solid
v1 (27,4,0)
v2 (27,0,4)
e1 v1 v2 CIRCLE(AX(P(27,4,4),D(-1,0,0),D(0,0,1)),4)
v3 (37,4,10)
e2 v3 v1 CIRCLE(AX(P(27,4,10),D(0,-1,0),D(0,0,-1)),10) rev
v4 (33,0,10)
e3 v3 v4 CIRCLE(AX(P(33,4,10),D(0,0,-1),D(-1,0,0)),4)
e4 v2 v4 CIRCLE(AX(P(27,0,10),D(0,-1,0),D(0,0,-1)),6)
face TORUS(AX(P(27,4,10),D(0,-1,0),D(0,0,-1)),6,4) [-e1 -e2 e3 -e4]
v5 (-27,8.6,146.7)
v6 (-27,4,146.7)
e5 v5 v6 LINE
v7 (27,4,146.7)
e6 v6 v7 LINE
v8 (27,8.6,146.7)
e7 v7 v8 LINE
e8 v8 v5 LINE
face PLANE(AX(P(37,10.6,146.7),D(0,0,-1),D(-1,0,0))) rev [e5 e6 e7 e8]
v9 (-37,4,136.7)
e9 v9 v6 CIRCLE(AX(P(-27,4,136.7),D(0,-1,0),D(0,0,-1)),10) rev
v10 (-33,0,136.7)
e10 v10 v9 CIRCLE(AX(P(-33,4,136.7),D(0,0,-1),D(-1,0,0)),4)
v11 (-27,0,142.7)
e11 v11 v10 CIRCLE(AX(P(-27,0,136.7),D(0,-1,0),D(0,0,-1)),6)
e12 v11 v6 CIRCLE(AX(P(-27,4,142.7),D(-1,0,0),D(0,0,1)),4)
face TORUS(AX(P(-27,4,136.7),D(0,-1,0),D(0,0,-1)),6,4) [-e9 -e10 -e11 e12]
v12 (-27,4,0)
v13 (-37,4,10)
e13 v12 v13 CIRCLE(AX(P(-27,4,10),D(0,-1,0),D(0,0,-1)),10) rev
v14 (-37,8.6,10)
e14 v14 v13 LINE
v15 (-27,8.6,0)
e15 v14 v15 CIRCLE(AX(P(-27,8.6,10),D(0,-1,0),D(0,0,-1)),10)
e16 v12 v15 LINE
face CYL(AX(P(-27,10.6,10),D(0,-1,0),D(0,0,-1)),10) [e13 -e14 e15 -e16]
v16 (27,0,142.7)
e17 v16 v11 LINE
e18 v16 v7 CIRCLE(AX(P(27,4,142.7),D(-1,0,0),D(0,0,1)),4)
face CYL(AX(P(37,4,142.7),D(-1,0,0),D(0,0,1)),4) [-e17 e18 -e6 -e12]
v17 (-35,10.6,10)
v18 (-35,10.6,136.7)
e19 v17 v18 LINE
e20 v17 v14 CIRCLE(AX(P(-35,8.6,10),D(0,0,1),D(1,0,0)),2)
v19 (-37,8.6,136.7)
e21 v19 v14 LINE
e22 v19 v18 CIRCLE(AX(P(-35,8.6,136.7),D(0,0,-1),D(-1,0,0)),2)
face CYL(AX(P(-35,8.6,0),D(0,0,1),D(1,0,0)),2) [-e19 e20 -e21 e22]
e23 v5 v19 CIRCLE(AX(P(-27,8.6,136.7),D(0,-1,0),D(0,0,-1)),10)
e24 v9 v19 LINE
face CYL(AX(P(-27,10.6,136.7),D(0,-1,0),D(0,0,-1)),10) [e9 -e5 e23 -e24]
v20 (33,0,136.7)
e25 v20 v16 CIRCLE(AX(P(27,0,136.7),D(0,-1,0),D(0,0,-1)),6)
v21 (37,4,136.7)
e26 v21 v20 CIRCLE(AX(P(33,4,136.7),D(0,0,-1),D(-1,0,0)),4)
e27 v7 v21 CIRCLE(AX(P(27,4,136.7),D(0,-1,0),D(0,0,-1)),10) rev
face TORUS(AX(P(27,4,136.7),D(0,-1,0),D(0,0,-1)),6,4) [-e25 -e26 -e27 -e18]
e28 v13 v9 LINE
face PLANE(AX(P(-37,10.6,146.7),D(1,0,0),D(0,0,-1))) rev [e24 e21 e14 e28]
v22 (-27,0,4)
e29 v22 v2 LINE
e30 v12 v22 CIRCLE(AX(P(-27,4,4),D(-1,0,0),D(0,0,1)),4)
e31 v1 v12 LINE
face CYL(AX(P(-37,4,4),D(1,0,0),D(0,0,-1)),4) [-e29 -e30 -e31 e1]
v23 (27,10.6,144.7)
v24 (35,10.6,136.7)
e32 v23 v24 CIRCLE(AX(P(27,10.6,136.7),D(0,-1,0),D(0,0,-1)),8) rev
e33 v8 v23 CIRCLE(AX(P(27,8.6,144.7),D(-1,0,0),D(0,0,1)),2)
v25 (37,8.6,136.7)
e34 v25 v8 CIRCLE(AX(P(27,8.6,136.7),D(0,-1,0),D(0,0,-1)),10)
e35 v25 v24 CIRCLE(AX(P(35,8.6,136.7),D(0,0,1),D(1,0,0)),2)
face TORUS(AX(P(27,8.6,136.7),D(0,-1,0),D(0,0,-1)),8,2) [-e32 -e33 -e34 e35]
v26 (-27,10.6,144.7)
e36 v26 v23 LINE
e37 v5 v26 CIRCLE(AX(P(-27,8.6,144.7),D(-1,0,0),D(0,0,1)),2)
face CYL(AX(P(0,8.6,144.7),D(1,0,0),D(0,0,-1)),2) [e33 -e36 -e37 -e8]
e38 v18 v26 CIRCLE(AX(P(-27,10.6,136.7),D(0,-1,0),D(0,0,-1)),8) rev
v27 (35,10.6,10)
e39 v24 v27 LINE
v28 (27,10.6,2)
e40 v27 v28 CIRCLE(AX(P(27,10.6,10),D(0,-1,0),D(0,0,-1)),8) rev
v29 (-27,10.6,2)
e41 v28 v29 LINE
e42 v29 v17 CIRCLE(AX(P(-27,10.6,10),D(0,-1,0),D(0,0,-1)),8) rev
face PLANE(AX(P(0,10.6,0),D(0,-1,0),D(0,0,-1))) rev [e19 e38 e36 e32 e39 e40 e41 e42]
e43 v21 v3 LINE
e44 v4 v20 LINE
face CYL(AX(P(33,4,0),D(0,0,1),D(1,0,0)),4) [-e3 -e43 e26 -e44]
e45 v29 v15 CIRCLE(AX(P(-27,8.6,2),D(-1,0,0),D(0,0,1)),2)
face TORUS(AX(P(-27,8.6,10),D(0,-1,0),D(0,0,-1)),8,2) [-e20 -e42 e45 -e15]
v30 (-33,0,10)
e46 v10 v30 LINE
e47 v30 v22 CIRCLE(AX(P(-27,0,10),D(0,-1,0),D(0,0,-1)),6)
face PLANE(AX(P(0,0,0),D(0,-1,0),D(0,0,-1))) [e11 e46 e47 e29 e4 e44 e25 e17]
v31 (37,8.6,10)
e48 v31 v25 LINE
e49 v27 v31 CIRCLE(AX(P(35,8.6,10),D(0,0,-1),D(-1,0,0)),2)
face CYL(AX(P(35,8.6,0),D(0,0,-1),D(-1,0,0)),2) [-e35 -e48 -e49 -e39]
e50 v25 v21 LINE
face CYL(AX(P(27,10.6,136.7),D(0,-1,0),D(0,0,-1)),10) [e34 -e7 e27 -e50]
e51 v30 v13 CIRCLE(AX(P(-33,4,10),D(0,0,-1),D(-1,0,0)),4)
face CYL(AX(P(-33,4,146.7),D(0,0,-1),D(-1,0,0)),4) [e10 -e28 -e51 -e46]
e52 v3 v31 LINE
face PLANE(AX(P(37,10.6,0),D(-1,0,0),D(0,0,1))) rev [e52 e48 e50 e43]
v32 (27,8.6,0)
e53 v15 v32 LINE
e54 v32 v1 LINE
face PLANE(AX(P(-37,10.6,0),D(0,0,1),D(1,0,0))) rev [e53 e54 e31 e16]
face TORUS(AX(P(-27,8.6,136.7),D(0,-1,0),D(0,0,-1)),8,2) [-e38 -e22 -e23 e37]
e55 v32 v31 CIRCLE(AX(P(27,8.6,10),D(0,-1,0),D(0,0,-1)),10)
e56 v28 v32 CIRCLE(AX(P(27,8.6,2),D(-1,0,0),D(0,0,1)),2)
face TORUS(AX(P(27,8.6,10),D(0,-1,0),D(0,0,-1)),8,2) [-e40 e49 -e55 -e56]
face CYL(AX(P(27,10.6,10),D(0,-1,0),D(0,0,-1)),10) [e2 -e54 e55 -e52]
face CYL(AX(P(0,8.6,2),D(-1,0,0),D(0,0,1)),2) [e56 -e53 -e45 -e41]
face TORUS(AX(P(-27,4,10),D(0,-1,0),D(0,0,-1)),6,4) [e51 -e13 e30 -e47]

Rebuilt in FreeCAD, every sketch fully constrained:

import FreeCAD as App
import Part
import Sketcher

V = App.Vector


def edges_at(feature, points):
    """Names of the edges that pass closest to the given points."""
    edges = feature.Shape.Edges
    near = lambda p: min(range(len(edges)), key=lambda i: edges[i].distToShape(Part.Vertex(*p))[0])
    return sorted({f"Edge{near(p) + 1}" for p in points})


def add_polygon(sketch, points):
    """Adds a closed chain of lines whose ends are joined by coincident constraints."""
    first, n = sketch.GeometryCount, len(points)
    for a, b in zip(points, points[1:] + points[:1]):
        sketch.addGeometry(Part.LineSegment(App.Vector(*a, 0), App.Vector(*b, 0)), False)
    for i in range(n):
        sketch.addConstraint(Sketcher.Constraint("Coincident", first + i, 2, first + (i + 1) % n, 1))

doc = App.newDocument("Part")
body = doc.addObject("PartDesign::Body", "Body")

sketch1 = body.newObject("Sketcher::SketchObject", "Sketch")
sketch1.AttachmentSupport = (doc.getObject("XZ_Plane"), [""])
sketch1.MapMode = "FlatFace"
add_polygon(sketch1, [(-37, 0), (-37, 147), (37, 147), (37, 0)])
sketch1.addConstraint(Sketcher.Constraint("Vertical", 0))
sketch1.addConstraint(Sketcher.Constraint("Horizontal", 1))
sketch1.addConstraint(Sketcher.Constraint("Vertical", 2))
sketch1.addConstraint(Sketcher.Constraint("Horizontal", 3))
sketch1.addConstraint(Sketcher.Constraint("Symmetric", 2, 2, 3, 2, -1, 1))
sketch1.addConstraint(Sketcher.Constraint("DistanceX", 1, 1, 1, 2, 74.0))
sketch1.addConstraint(Sketcher.Constraint("DistanceY", 0, 1, 0, 2, 146.7))
pad1 = body.newObject("PartDesign::Pad", "Pad")
pad1.Profile = sketch1
pad1.Length = 10.6
pad1.Reversed = True
doc.recompute()

fillet = body.newObject("PartDesign::Fillet", "Fillet")
fillet.Base = (pad1, edges_at(pad1, [
    (-37, 5.3, 0),
    (37, 5.3, 0),
    (37, 5.3, 146.7),
    (-37, 5.3, 146.7),
]))
fillet.Radius = 10
doc.recompute()

fillet2 = body.newObject("PartDesign::Fillet", "Fillet001")
fillet2.Base = (fillet, edges_at(fillet, [
    (37, 0, 73.35),
    (-37, 0, 73.35),
    (0, 0, 0),
    (0, 0, 146.7),
    (34.071, 0, 2.929),
    (-34.071, 0, 2.929),
    (-34.071, 0, 143.771),
    (34.071, 0, 143.771),
]))
fillet2.Radius = 4
doc.recompute()

fillet3 = body.newObject("PartDesign::Fillet", "Fillet002")
fillet3.Base = (fillet2, edges_at(fillet2, [
    (37, 10.6, 73.35),
    (0, 10.6, 146.7),
    (-37, 10.6, 73.35),
    (0, 10.6, 0),
    (34.071, 10.6, 2.929),
    (-34.071, 10.6, 2.929),
    (-34.071, 10.6, 143.771),
    (34.071, 10.6, 143.771),
]))
fillet3.Radius = 2

doc.recompute()
